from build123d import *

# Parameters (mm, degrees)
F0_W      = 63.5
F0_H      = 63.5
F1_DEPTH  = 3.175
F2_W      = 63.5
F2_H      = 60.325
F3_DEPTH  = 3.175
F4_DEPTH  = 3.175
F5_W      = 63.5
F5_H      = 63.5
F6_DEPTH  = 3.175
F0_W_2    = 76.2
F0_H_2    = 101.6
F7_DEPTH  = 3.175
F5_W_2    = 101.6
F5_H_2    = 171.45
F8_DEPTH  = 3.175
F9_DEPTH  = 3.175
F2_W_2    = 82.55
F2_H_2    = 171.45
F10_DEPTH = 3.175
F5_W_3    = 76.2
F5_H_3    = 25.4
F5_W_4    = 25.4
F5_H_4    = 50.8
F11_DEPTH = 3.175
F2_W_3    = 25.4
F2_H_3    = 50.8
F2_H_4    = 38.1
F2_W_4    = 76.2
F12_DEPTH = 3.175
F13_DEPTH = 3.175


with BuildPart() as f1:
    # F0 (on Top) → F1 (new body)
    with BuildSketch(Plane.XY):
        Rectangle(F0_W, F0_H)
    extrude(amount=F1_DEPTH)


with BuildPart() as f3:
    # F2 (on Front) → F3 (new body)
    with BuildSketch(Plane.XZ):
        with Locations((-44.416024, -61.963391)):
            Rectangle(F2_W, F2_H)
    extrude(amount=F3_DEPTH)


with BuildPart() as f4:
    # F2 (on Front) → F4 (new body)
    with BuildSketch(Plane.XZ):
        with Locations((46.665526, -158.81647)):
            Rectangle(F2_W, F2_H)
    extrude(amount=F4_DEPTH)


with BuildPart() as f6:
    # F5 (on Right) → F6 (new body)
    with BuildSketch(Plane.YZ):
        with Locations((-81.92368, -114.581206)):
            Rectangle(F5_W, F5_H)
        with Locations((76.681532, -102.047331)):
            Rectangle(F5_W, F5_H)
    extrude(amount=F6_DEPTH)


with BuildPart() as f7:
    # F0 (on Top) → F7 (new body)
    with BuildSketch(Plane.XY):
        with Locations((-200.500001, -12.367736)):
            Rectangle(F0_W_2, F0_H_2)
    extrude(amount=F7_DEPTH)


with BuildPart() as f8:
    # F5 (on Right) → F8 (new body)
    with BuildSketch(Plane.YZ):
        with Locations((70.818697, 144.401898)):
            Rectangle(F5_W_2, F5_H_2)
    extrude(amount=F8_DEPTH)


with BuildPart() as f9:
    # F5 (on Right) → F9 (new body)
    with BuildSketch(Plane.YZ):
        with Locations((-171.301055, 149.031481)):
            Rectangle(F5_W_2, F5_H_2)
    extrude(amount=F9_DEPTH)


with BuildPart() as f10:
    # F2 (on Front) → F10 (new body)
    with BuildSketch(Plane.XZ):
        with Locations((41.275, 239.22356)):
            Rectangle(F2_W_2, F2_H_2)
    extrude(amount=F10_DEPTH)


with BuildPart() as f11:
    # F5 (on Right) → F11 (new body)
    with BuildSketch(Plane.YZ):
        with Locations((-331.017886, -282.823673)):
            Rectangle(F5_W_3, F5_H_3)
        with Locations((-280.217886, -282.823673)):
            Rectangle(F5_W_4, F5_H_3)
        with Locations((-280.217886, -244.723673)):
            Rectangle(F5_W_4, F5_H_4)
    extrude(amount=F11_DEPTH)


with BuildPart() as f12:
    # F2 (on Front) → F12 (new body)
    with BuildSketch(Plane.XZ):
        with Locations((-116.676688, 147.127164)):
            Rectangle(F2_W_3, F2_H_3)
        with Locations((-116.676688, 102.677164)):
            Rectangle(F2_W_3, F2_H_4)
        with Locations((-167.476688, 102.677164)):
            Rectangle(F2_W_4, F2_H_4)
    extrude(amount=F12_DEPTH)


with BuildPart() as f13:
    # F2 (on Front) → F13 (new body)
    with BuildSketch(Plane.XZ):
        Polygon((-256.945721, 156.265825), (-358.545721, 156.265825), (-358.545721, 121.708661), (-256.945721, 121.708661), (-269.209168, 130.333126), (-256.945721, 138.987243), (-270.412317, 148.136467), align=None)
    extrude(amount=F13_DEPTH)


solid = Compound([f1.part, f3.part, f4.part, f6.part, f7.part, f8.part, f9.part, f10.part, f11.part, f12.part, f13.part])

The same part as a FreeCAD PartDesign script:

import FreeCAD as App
import Part
import Sketcher
from FreeCAD import Vector
Q = App.Units.Quantity


def add_polygon(sketch, points):
    """Adds a closed chain of lines whose ends are joined by coincident constraints."""
    first, n = sketch.GeometryCount, len(points)
    for a, b in zip(points, points[1:] + points[:1]):
        sketch.addGeometry(Part.LineSegment(App.Vector(*a, 0), App.Vector(*b, 0)), False)
    for i in range(n):
        sketch.addConstraint(Sketcher.Constraint("Coincident", first + i, 2, first + (i + 1) % n, 1))

doc = App.newDocument("Part")
params = doc.addObject("Spreadsheet::Sheet", "Params")
for row, (alias, value) in enumerate([
    ("sketch1_width", "2.5 in"),
    ("pad1_length", "0.125 in"),
    ("sketch2_width", "2.5 in"),
    ("sketch2_height", "2.375 in"),
    ("pad2_length", "0.125 in"),
    ("sketch3_width", "2.5 in"),
    ("sketch3_height", "2.375 in"),
    ("pad3_length", "0.125 in"),
    ("sketch4_width", "2.5 in"),
    ("pad4_length", "0.125 in"),
    ("sketch5_width", "3 in"),
    ("sketch5_height", "4 in"),
    ("pad5_length", "0.125 in"),
    ("sketch6_width", "4 in"),
    ("sketch6_height", "6.75 in"),
    ("pad6_length", "0.125 in"),
    ("sketch7_width", "4 in"),
    ("sketch7_height", "6.75 in"),
    ("pad7_length", "0.125 in"),
    ("sketch8_width", "3.25 in"),
    ("sketch8_height", "6.75 in"),
    ("pad8_length", "0.125 in"),
    ("sketch9_width", "4 in"),
    ("sketch9_width2", "1 in"),
    ("pad9_length", "0.125 in"),
    ("sketch10_width", "3 in"),
    ("sketch10_width2", "4 in"),
    ("sketch10_height", "2 in"),
    ("sketch10_height2", "1.5 in"),
    ("pad10_length", "0.125 in"),
    ("sketch11_width", "4 in"),
    ("pad11_length", "0.125 in"),
], start=1):
    params.set(f"A{row}", alias)
    params.set(f"B{row}", "=" + value)
    params.setAlias(f"B{row}", alias)

body = doc.addObject("PartDesign::Body", "Body")

# Sketch on XY plane
sketch1 = body.newObject("Sketcher::SketchObject", "Sketch")
sketch1.AttachmentSupport = (doc.getObject("XY_Plane"), [""])
sketch1.MapMode = "FlatFace"
add_polygon(sketch1, [(-32, 32), (-32, -32), (32, -32), (32, 32)])  # lines 0-3
sketch1.addConstraint(Sketcher.Constraint("Vertical", 0))
sketch1.addConstraint(Sketcher.Constraint("Horizontal", 1))
sketch1.addConstraint(Sketcher.Constraint("Vertical", 2))
sketch1.addConstraint(Sketcher.Constraint("Horizontal", 3))
sketch1.addConstraint(Sketcher.Constraint("Symmetric", 0, 2, 2, 2, -1, 1))
sketch1.addConstraint(Sketcher.Constraint("Equal", 3, 0))
sketch1.addConstraint(Sketcher.Constraint("DistanceX", 1, 1, 1, 2, Q("2.5 in")))
sketch1.setExpression("Constraints[10]", "Params.sketch1_width")
pad1 = body.newObject("PartDesign::Pad", "Pad")
pad1.Profile = sketch1
pad1.setExpression("Length", "Params.pad1_length")
body2 = doc.addObject("PartDesign::Body", "Body001")

# Sketch on XZ plane
sketch2 = body2.newObject("Sketcher::SketchObject", "Sketch001")
sketch2.AttachmentSupport = (doc.getObject("XZ_Plane001"), [""])
sketch2.MapMode = "FlatFace"
add_polygon(sketch2, [(-76, -32), (-76, -92), (-13, -92), (-13, -32)])  # lines 0-3
sketch2.addConstraint(Sketcher.Constraint("Vertical", 0))
sketch2.addConstraint(Sketcher.Constraint("Horizontal", 1))
sketch2.addConstraint(Sketcher.Constraint("Vertical", 2))
sketch2.addConstraint(Sketcher.Constraint("Horizontal", 3))
sketch2.addConstraint(Sketcher.Constraint("DistanceX", 1, 1, 1, 2, Q("2.5 in")))
sketch2.addConstraint(Sketcher.Constraint("DistanceY", 0, 2, 0, 1, Q("2.375 in")))
sketch2.addConstraint(Sketcher.Constraint("DistanceY", 0, 2, -1, 1, 92.125891))
sketch2.addConstraint(Sketcher.Constraint("DistanceX", 0, 2, -1, 1, 76.166024))
sketch2.setExpression("Constraints[8]", "Params.sketch2_width")
sketch2.setExpression("Constraints[9]", "Params.sketch2_height")
pad2 = body2.newObject("PartDesign::Pad", "Pad001")
pad2.Profile = sketch2
pad2.setExpression("Length", "Params.pad2_length")
body3 = doc.addObject("PartDesign::Body", "Body002")

# Sketch on XZ plane
sketch3 = body3.newObject("Sketcher::SketchObject", "Sketch002")
sketch3.AttachmentSupport = (doc.getObject("XZ_Plane002"), [""])
sketch3.MapMode = "FlatFace"
add_polygon(sketch3, [(15, -129), (15, -189), (78, -189), (78, -129)])  # lines 0-3
sketch3.addConstraint(Sketcher.Constraint("Vertical", 0))
sketch3.addConstraint(Sketcher.Constraint("Horizontal", 1))
sketch3.addConstraint(Sketcher.Constraint("Vertical", 2))
sketch3.addConstraint(Sketcher.Constraint("Horizontal", 3))
sketch3.addConstraint(Sketcher.Constraint("DistanceX", 1, 1, 1, 2, Q("2.5 in")))
sketch3.addConstraint(Sketcher.Constraint("DistanceY", 0, 2, 0, 1, Q("2.375 in")))
sketch3.addConstraint(Sketcher.Constraint("DistanceY", 0, 2, -1, 1, 188.97897))
sketch3.addConstraint(Sketcher.Constraint("DistanceX", -1, 1, 0, 2, 14.915526))
sketch3.setExpression("Constraints[8]", "Params.sketch3_width")
sketch3.setExpression("Constraints[9]", "Params.sketch3_height")
pad3 = body3.newObject("PartDesign::Pad", "Pad002")
pad3.Profile = sketch3
pad3.setExpression("Length", "Params.pad3_length")
body4 = doc.addObject("PartDesign::Body", "Body003")
body4.AllowCompound = True

# Sketch on YZ plane
sketch4 = body4.newObject("Sketcher::SketchObject", "Sketch003")
sketch4.AttachmentSupport = (doc.getObject("YZ_Plane003"), [""])
sketch4.MapMode = "FlatFace"
add_polygon(sketch4, [(-114, -83), (-114, -146), (-50, -146), (-50, -83)])  # lines 0-3
add_polygon(sketch4, [(45, -70), (45, -134), (108, -134), (108, -70)])  # lines 4-7
sketch4.addConstraint(Sketcher.Constraint("Vertical", 0))
sketch4.addConstraint(Sketcher.Constraint("Horizontal", 1))
sketch4.addConstraint(Sketcher.Constraint("Vertical", 2))
sketch4.addConstraint(Sketcher.Constraint("Horizontal", 3))
sketch4.addConstraint(Sketcher.Constraint("Vertical", 4))
sketch4.addConstraint(Sketcher.Constraint("Horizontal", 5))
sketch4.addConstraint(Sketcher.Constraint("Vertical", 6))
sketch4.addConstraint(Sketcher.Constraint("Horizontal", 7))
sketch4.addConstraint(Sketcher.Constraint("Equal", 3, 5))
sketch4.addConstraint(Sketcher.Constraint("Equal", 7, 0))
sketch4.addConstraint(Sketcher.Constraint("Equal", 2, 4))
sketch4.addConstraint(Sketcher.Constraint("DistanceX", 1, 1, 1, 2, Q("2.5 in")))
sketch4.addConstraint(Sketcher.Constraint("DistanceX", 0, 2, -1, 1, 113.67368))
sketch4.addConstraint(Sketcher.Constraint("DistanceX", -1, 1, 4, 2, 44.931532))
sketch4.addConstraint(Sketcher.Constraint("DistanceY", 4, 2, -1, 1, 133.797331))
sketch4.addConstraint(Sketcher.Constraint("DistanceY", 0, 2, -1, 1, 146.331206))
sketch4.setExpression("Constraints[19]", "Params.sketch4_width")
pad4 = body4.newObject("PartDesign::Pad", "Pad003")
pad4.Profile = sketch4
pad4.setExpression("Length", "Params.pad4_length")
body5 = doc.addObject("PartDesign::Body", "Body004")

# Sketch on XY plane
sketch5 = body5.newObject("Sketcher::SketchObject", "Sketch004")
sketch5.AttachmentSupport = (doc.getObject("XY_Plane004"), [""])
sketch5.MapMode = "FlatFace"
add_polygon(sketch5, [(-239, 38), (-239, -63), (-162, -63), (-162, 38)])  # lines 0-3
sketch5.addConstraint(Sketcher.Constraint("Vertical", 0))
sketch5.addConstraint(Sketcher.Constraint("Horizontal", 1))
sketch5.addConstraint(Sketcher.Constraint("Vertical", 2))
sketch5.addConstraint(Sketcher.Constraint("Horizontal", 3))
sketch5.addConstraint(Sketcher.Constraint("DistanceX", 1, 1, 1, 2, Q("3 in")))
sketch5.addConstraint(Sketcher.Constraint("DistanceY", 0, 2, 0, 1, Q("4 in")))
sketch5.addConstraint(Sketcher.Constraint("DistanceX", 0, 2, -1, 1, 238.600001))
sketch5.addConstraint(Sketcher.Constraint("DistanceY", 0, 2, -1, 1, 63.167736))
sketch5.setExpression("Constraints[8]", "Params.sketch5_width")
sketch5.setExpression("Constraints[9]", "Params.sketch5_height")
pad5 = body5.newObject("PartDesign::Pad", "Pad004")
pad5.Profile = sketch5
pad5.setExpression("Length", "Params.pad5_length")
body6 = doc.addObject("PartDesign::Body", "Body005")

# Sketch on YZ plane
sketch6 = body6.newObject("Sketcher::SketchObject", "Sketch005")
sketch6.AttachmentSupport = (doc.getObject("YZ_Plane005"), [""])
sketch6.MapMode = "FlatFace"
add_polygon(sketch6, [(20, 230), (20, 59), (122, 59), (122, 230)])  # lines 0-3
sketch6.addConstraint(Sketcher.Constraint("Vertical", 0))
sketch6.addConstraint(Sketcher.Constraint("Horizontal", 1))
sketch6.addConstraint(Sketcher.Constraint("Vertical", 2))
sketch6.addConstraint(Sketcher.Constraint("Horizontal", 3))
sketch6.addConstraint(Sketcher.Constraint("DistanceX", 1, 1, 1, 2, Q("4 in")))
sketch6.addConstraint(Sketcher.Constraint("DistanceY", 0, 2, 0, 1, Q("6.75 in")))
sketch6.addConstraint(Sketcher.Constraint("DistanceY", -1, 1, 2, 2, 230.126898))
sketch6.addConstraint(Sketcher.Constraint("DistanceX", -1, 1, 0, 2, 20.018697))
sketch6.setExpression("Constraints[8]", "Params.sketch6_width")
sketch6.setExpression("Constraints[9]", "Params.sketch6_height")
pad6 = body6.newObject("PartDesign::Pad", "Pad005")
pad6.Profile = sketch6
pad6.setExpression("Length", "Params.pad6_length")
body7 = doc.addObject("PartDesign::Body", "Body006")

# Sketch on YZ plane
sketch7 = body7.newObject("Sketcher::SketchObject", "Sketch006")
sketch7.AttachmentSupport = (doc.getObject("YZ_Plane006"), [""])
sketch7.MapMode = "FlatFace"
add_polygon(sketch7, [(-222, 235), (-222, 63), (-121, 63), (-121, 235)])  # lines 0-3
sketch7.addConstraint(Sketcher.Constraint("Vertical", 0))
sketch7.addConstraint(Sketcher.Constraint("Horizontal", 1))
sketch7.addConstraint(Sketcher.Constraint("Vertical", 2))
sketch7.addConstraint(Sketcher.Constraint("Horizontal", 3))
sketch7.addConstraint(Sketcher.Constraint("DistanceX", 1, 1, 1, 2, Q("4 in")))
sketch7.addConstraint(Sketcher.Constraint("DistanceY", 0, 2, 0, 1, Q("6.75 in")))
sketch7.addConstraint(Sketcher.Constraint("DistanceY", -1, 1, 0, 2, 63.306481))
sketch7.addConstraint(Sketcher.Constraint("DistanceX", 0, 2, -1, 1, 222.101055))
sketch7.setExpression("Constraints[8]", "Params.sketch7_width")
sketch7.setExpression("Constraints[9]", "Params.sketch7_height")
pad7 = body7.newObject("PartDesign::Pad", "Pad006")
pad7.Profile = sketch7
pad7.setExpression("Length", "Params.pad7_length")
body8 = doc.addObject("PartDesign::Body", "Body007")

# Sketch on XZ plane
sketch8 = body8.newObject("Sketcher::SketchObject", "Sketch007")
sketch8.AttachmentSupport = (doc.getObject("XZ_Plane007"), [""])
sketch8.MapMode = "FlatFace"
add_polygon(sketch8, [(0, 325), (0, 153), (83, 153), (83, 325)])  # lines 0-3
sketch8.addConstraint(Sketcher.Constraint("Vertical", 0))
sketch8.addConstraint(Sketcher.Constraint("Horizontal", 1))
sketch8.addConstraint(Sketcher.Constraint("Vertical", 2))
sketch8.addConstraint(Sketcher.Constraint("Horizontal", 3))
sketch8.addConstraint(Sketcher.Constraint("PointOnObject", 0, 2, -2))
sketch8.addConstraint(Sketcher.Constraint("DistanceX", 1, 1, 1, 2, Q("3.25 in")))
sketch8.addConstraint(Sketcher.Constraint("DistanceY", 0, 2, 0, 1, Q("6.75 in")))
sketch8.addConstraint(Sketcher.Constraint("DistanceY", -1, 1, 0, 2, 153.49856))
sketch8.setExpression("Constraints[9]", "Params.sketch8_width")
sketch8.setExpression("Constraints[10]", "Params.sketch8_height")
pad8 = body8.newObject("PartDesign::Pad", "Pad007")
pad8.Profile = sketch8
pad8.setExpression("Length", "Params.pad8_length")
body9 = doc.addObject("PartDesign::Body", "Body008")

# Sketch on YZ plane
sketch9 = body9.newObject("Sketcher::SketchObject", "Sketch008")
sketch9.AttachmentSupport = (doc.getObject("YZ_Plane008"), [""])
sketch9.MapMode = "FlatFace"
add_polygon(sketch9, [(-369, -270), (-369, -296), (-268, -296), (-268, -219), (-293, -219), (-293, -270)])  # lines 0-5
sketch9.addConstraint(Sketcher.Constraint("Vertical", 0))
sketch9.addConstraint(Sketcher.Constraint("Horizontal", 1))
sketch9.addConstraint(Sketcher.Constraint("Vertical", 2))
sketch9.addConstraint(Sketcher.Constraint("Horizontal", 3))
sketch9.addConstraint(Sketcher.Constraint("Vertical", 4))
sketch9.addConstraint(Sketcher.Constraint("Horizontal", 5))
sketch9.addConstraint(Sketcher.Constraint("Equal", 3, 0))
sketch9.addConstraint(Sketcher.Constraint("Equal", 5, 2))
sketch9.addConstraint(Sketcher.Constraint("DistanceX", 1, 1, 1, 2, Q("4 in")))
sketch9.addConstraint(Sketcher.Constraint("DistanceX", 3, 2, 3, 1, Q("1 in")))
sketch9.addConstraint(Sketcher.Constraint("DistanceX", 0, 2, -1, 1, 369.117886))
sketch9.addConstraint(Sketcher.Constraint("DistanceY", 0, 2, -1, 1, 295.523673))
sketch9.setExpression("Constraints[14]", "Params.sketch9_width")
sketch9.setExpression("Constraints[15]", "Params.sketch9_width2")
pad9 = body9.newObject("PartDesign::Pad", "Pad008")
pad9.Profile = sketch9
pad9.setExpression("Length", "Params.pad9_length")
body10 = doc.addObject("PartDesign::Body", "Body009")

# Sketch on XZ plane
sketch10 = body10.newObject("Sketcher::SketchObject", "Sketch009")
sketch10.AttachmentSupport = (doc.getObject("XZ_Plane009"), [""])
sketch10.MapMode = "FlatFace"
add_polygon(sketch10, [(-129, 173), (-129, 122), (-206, 122), (-206, 84), (-104, 84), (-104, 173)])  # lines 0-5
sketch10.addConstraint(Sketcher.Constraint("Vertical", 0))
sketch10.addConstraint(Sketcher.Constraint("Horizontal", 1))
sketch10.addConstraint(Sketcher.Constraint("Vertical", 2))
sketch10.addConstraint(Sketcher.Constraint("Horizontal", 3))
sketch10.addConstraint(Sketcher.Constraint("Vertical", 4))
sketch10.addConstraint(Sketcher.Constraint("Horizontal", 5))
sketch10.addConstraint(Sketcher.Constraint("DistanceX", 1, 2, 1, 1, Q("3 in")))
sketch10.addConstraint(Sketcher.Constraint("DistanceX", 3, 1, 3, 2, Q("4 in")))
sketch10.addConstraint(Sketcher.Constraint("DistanceY", 0, 2, 0, 1, Q("2 in")))
sketch10.addConstraint(Sketcher.Constraint("DistanceY", 2, 2, 2, 1, Q("1.5 in")))
sketch10.addConstraint(Sketcher.Constraint("DistanceX", 0, 2, -1, 1, 129.376688))
sketch10.addConstraint(Sketcher.Constraint("DistanceY", -1, 1, 0, 2, 121.727164))
sketch10.setExpression("Constraints[12]", "Params.sketch10_width")
sketch10.setExpression("Constraints[13]", "Params.sketch10_width2")
sketch10.setExpression("Constraints[14]", "Params.sketch10_height")
sketch10.setExpression("Constraints[15]", "Params.sketch10_height2")
pad10 = body10.newObject("PartDesign::Pad", "Pad009")
pad10.Profile = sketch10
pad10.setExpression("Length", "Params.pad10_length")
body11 = doc.addObject("PartDesign::Body", "Body010")

# Sketch on XZ plane
sketch11 = body11.newObject("Sketcher::SketchObject", "Sketch010")
sketch11.AttachmentSupport = (doc.getObject("XZ_Plane010"), [""])
sketch11.MapMode = "FlatFace"
add_polygon(sketch11, [(-257, 156), (-359, 156), (-359, 122), (-257, 122), (-269, 130), (-257, 139), (-270, 148)])  # lines 0-6
sketch11.addConstraint(Sketcher.Constraint("Horizontal", 0))
sketch11.addConstraint(Sketcher.Constraint("Vertical", 1))
sketch11.addConstraint(Sketcher.Constraint("Horizontal", 2))
sketch11.addConstraint(Sketcher.Constraint("Vertical", 2, 2, 4, 2))
sketch11.addConstraint(Sketcher.Constraint("Vertical", 4, 2, 6, 2))
sketch11.addConstraint(Sketcher.Constraint("DistanceX", 0, 2, 0, 1, Q("4 in")))
sketch11.addConstraint(Sketcher.Constraint("Angle", 4, Q("35.210003 deg")))
sketch11.addConstraint(Sketcher.Constraint("DistanceY", 3, 2, 0, 2, 25.932699))
sketch11.addConstraint(Sketcher.Constraint("Distance", 3, 14.992449))
sketch11.addConstraint(Sketcher.Constraint("Distance", 6, 15.730088))
sketch11.addConstraint(Sketcher.Constraint("DistanceY", 1, 2, 1, 1, 34.557164))
sketch11.addConstraint(Sketcher.Constraint("DistanceX", 0, 2, -1, 1, 358.545721))
sketch11.addConstraint(Sketcher.Constraint("DistanceY", -1, 1, 1, 2, 121.708661))
sketch11.addConstraint(Sketcher.Constraint("DistanceX", 5, 2, 3, 2, 1.203149))
sketch11.setExpression("Constraints[12]", "Params.sketch11_width")
pad11 = body11.newObject("PartDesign::Pad", "Pad010")
pad11.Profile = sketch11
pad11.setExpression("Length", "Params.pad11_length")

doc.recompute()
